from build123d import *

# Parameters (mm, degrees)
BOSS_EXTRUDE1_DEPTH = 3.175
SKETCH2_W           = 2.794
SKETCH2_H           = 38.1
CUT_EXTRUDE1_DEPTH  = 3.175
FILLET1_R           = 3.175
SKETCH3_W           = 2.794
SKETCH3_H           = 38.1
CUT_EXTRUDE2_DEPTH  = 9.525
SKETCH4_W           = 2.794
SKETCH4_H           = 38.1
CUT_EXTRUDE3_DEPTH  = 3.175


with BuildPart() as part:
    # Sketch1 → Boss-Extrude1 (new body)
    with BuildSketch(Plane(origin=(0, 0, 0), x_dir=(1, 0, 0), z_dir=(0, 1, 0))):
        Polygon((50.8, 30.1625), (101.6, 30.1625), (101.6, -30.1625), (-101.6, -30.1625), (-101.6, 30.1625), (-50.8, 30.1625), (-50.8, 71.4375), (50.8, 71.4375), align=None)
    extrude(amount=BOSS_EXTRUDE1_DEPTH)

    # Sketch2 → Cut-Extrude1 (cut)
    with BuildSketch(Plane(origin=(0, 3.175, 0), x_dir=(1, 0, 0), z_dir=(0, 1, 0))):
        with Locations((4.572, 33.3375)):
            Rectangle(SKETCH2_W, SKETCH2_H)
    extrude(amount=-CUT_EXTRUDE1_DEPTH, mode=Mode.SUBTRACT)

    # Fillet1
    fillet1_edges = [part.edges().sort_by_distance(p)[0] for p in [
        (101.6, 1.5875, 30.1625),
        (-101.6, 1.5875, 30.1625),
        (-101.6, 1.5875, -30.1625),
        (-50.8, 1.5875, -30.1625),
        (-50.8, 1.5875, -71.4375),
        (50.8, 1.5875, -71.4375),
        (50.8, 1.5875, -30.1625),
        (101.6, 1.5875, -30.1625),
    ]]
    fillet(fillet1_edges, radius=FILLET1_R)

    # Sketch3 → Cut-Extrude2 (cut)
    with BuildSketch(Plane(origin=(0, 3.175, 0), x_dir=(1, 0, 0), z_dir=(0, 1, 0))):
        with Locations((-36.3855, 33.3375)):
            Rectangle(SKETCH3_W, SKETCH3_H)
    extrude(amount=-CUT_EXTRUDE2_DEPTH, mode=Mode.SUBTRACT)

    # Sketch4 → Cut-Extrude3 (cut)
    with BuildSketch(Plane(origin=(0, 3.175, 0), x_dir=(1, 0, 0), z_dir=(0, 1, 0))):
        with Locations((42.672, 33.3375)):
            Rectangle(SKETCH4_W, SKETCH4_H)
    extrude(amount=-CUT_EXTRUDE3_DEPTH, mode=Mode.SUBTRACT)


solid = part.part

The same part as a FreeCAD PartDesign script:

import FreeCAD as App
import Part
import Sketcher

V = App.Vector
Q = App.Units.Quantity


def edges_at(feature, points):
    """Names of the edges that pass closest to the given points."""
    edges = feature.Shape.Edges
    near = lambda p: min(range(len(edges)), key=lambda i: edges[i].distToShape(Part.Vertex(*p))[0])
    return sorted({f"Edge{near(p) + 1}" for p in points})


def add_polygon(sketch, points):
    """Adds a closed chain of lines whose ends are joined by coincident constraints."""
    first, n = sketch.GeometryCount, len(points)
    for a, b in zip(points, points[1:] + points[:1]):
        sketch.addGeometry(Part.LineSegment(App.Vector(*a, 0), App.Vector(*b, 0)), False)
    for i in range(n):
        sketch.addConstraint(Sketcher.Constraint("Coincident", first + i, 2, first + (i + 1) % n, 1))

doc = App.newDocument("Part")
body = doc.addObject("PartDesign::Body", "Body")

# Sketch on XZ plane
sketch1 = body.newObject("Sketcher::SketchObject", "Sketch")
sketch1.AttachmentSupport = (doc.getObject("XZ_Plane"), [""])
sketch1.MapMode = "FlatFace"
add_polygon(sketch1, [(102, -30), (51, -30), (51, -71), (-51, -71), (-51, -30), (-102, -30), (-102, 30), (102, 30)])  # lines 0-7
sketch1.addConstraint(Sketcher.Constraint("Horizontal", 0))
sketch1.addConstraint(Sketcher.Constraint("Vertical", 1))
sketch1.addConstraint(Sketcher.Constraint("Horizontal", 2))
sketch1.addConstraint(Sketcher.Constraint("Vertical", 3))
sketch1.addConstraint(Sketcher.Constraint("Horizontal", 4))
sketch1.addConstraint(Sketcher.Constraint("Vertical", 5))
sketch1.addConstraint(Sketcher.Constraint("Horizontal", 6))
sketch1.addConstraint(Sketcher.Constraint("Vertical", 7))
sketch1.addConstraint(Sketcher.Constraint("Symmetric", 4, 2, 6, 2, -1, 1))
sketch1.addConstraint(Sketcher.Constraint("Symmetric", 0, 2, 3, 2, -2))
sketch1.addConstraint(Sketcher.Constraint("DistanceX", 0, 2, 0, 1, Q("2 in")))
sketch1.addConstraint(Sketcher.Constraint("DistanceX", 2, 2, 2, 1, Q("4 in")))
sketch1.addConstraint(Sketcher.Constraint("DistanceY", 2, 2, 5, 2, Q("4 in")))
sketch1.addConstraint(Sketcher.Constraint("DistanceY", 1, 2, 1, 1, Q("1.625 in")))
pad1 = body.newObject("PartDesign::Pad", "Pad")
pad1.Profile = sketch1
pad1.Length = Q("0.125 in")
pad1.Reversed = True

# Sketch on XZ plane
sketch2 = body.newObject("Sketcher::SketchObject", "Sketch001")
sketch2.AttachmentSupport = (doc.getObject("XZ_Plane"), [""])
sketch2.MapMode = "FlatFace"
sketch2.AttachmentOffset = App.Placement(V(0, 0, -0.125 * 25.4), App.Rotation())
add_polygon(sketch2, [(3.2, -52.4), (3.2, -14.3), (6, -14.3), (6, -52.4)])  # lines 0-3
sketch2.addConstraint(Sketcher.Constraint("Vertical", 0))
sketch2.addConstraint(Sketcher.Constraint("Horizontal", 1))
sketch2.addConstraint(Sketcher.Constraint("Vertical", 2))
sketch2.addConstraint(Sketcher.Constraint("Horizontal", 3))
sketch2.addConstraint(Sketcher.Constraint("DistanceY", 0, 1, 0, 2, Q("1.5 in")))
sketch2.addConstraint(Sketcher.Constraint("DistanceX", 1, 1, 1, 2, Q("0.11 in")))
sketch2.addConstraint(Sketcher.Constraint("DistanceX", -1, 1, 0, 2, Q("0.125 in")))
sketch2.addConstraint(Sketcher.Constraint("DistanceY", 0, 2, -1, 1, Q("0.5625 in")))
pocket1 = body.newObject("PartDesign::Pocket", "Pocket")
pocket1.Profile = sketch2
pocket1.Length = Q("0.125 in")
pocket1.Reversed = True
doc.recompute()

fillet = body.newObject("PartDesign::Fillet", "Fillet")
fillet.Base = (pocket1, edges_at(pocket1, [
    (101.6, 1.587, 30.163),
    (-101.6, 1.587, 30.163),
    (-101.6, 1.587, -30.163),
    (-50.8, 1.587, -30.163),
    (-50.8, 1.587, -71.438),
    (50.8, 1.587, -71.438),
    (50.8, 1.587, -30.163),
    (101.6, 1.587, -30.163),
]))
fillet.Radius = Q("0.125 in")

# Sketch on XZ plane
sketch3 = body.newObject("Sketcher::SketchObject", "Sketch002")
sketch3.AttachmentSupport = (doc.getObject("XZ_Plane"), [""])
sketch3.MapMode = "FlatFace"
sketch3.AttachmentOffset = App.Placement(V(0, 0, -0.125 * 25.4), App.Rotation())
add_polygon(sketch3, [(-37.8, -52.4), (-37.8, -14.3), (-35, -14.3), (-35, -52.4)])  # lines 0-3
sketch3.addConstraint(Sketcher.Constraint("Vertical", 0))
sketch3.addConstraint(Sketcher.Constraint("Horizontal", 1))
sketch3.addConstraint(Sketcher.Constraint("Vertical", 2))
sketch3.addConstraint(Sketcher.Constraint("Horizontal", 3))
sketch3.addConstraint(Sketcher.Constraint("DistanceY", 0, 1, 0, 2, Q("1.5 in")))
sketch3.addConstraint(Sketcher.Constraint("DistanceX", 1, 1, 1, 2, Q("0.11 in")))
sketch3.addConstraint(Sketcher.Constraint("DistanceY", 0, 2, -1, 1, Q("0.5625 in")))
sketch3.addConstraint(Sketcher.Constraint("DistanceX", 0, 2, -1, 1, Q("1.4875 in")))
pocket2 = body.newObject("PartDesign::Pocket", "Pocket001")
pocket2.Profile = sketch3
pocket2.Length = Q("0.375 in")
pocket2.Reversed = True

# Sketch on XZ plane
sketch4 = body.newObject("Sketcher::SketchObject", "Sketch003")
sketch4.AttachmentSupport = (doc.getObject("XZ_Plane"), [""])
sketch4.MapMode = "FlatFace"
sketch4.AttachmentOffset = App.Placement(V(0, 0, -0.125 * 25.4), App.Rotation())
add_polygon(sketch4, [(41.3, -52.4), (41.3, -14.3), (44.1, -14.3), (44.1, -52.4)])  # lines 0-3
sketch4.addConstraint(Sketcher.Constraint("Vertical", 0))
sketch4.addConstraint(Sketcher.Constraint("Horizontal", 1))
sketch4.addConstraint(Sketcher.Constraint("Vertical", 2))
sketch4.addConstraint(Sketcher.Constraint("Horizontal", 3))
sketch4.addConstraint(Sketcher.Constraint("DistanceY", 0, 1, 0, 2, Q("1.5 in")))
sketch4.addConstraint(Sketcher.Constraint("DistanceX", 1, 1, 1, 2, Q("0.11 in")))
sketch4.addConstraint(Sketcher.Constraint("DistanceX", -1, 1, 0, 2, Q("1.625 in")))
sketch4.addConstraint(Sketcher.Constraint("DistanceY", 0, 2, -1, 1, Q("0.5625 in")))
pocket3 = body.newObject("PartDesign::Pocket", "Pocket002")
pocket3.Profile = sketch4
pocket3.Length = Q("0.125 in")
pocket3.Reversed = True

doc.recompute()
